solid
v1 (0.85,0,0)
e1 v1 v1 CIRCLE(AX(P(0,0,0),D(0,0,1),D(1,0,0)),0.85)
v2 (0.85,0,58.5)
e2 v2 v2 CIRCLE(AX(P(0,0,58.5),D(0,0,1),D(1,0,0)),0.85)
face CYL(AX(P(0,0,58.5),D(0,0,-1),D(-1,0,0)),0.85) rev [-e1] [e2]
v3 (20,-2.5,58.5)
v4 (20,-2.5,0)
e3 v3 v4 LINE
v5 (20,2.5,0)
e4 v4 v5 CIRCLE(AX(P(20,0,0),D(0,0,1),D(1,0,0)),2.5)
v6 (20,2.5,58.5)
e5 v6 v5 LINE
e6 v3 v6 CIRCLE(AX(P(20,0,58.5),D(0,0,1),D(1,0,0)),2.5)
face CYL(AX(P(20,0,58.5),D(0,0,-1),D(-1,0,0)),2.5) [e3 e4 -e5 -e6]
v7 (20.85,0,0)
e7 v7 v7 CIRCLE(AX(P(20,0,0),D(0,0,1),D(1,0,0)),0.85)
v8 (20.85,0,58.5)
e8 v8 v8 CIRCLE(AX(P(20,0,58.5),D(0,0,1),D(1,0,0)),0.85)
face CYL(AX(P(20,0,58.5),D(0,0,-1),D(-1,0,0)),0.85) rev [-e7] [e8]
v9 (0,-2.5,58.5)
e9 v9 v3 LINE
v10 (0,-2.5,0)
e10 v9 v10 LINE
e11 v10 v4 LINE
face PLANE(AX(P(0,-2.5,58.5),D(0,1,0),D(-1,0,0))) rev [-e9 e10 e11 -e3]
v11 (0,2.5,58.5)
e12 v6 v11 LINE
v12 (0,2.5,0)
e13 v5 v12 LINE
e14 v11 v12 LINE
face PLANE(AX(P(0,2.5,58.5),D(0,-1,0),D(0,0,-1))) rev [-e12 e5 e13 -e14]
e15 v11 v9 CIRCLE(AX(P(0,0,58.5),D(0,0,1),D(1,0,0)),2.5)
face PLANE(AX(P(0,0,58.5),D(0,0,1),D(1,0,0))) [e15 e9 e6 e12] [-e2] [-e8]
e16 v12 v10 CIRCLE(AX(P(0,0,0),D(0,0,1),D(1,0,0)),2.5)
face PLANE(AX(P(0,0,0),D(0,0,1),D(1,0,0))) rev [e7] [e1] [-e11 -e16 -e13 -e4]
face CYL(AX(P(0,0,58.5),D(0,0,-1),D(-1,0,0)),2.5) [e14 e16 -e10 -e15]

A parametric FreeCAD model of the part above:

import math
import FreeCAD as App
import Part
import Sketcher
Q = App.Units.Quantity

doc = App.newDocument("Part")
params = doc.addObject("Spreadsheet::Sheet", "Params")
for row, (alias, value) in enumerate([
    ("sketch1_diameter", "1.7 mm"),
    ("sketch1_radius", "2.5 mm"),
    ("sketch1_width", "20 mm"),
    ("pad1_length", "58.5 mm"),
], start=1):
    params.set(f"A{row}", alias)
    params.set(f"B{row}", "=" + value)
    params.setAlias(f"B{row}", alias)

body = doc.addObject("PartDesign::Body", "Body")

# Sketch on XY plane
sketch1 = body.newObject("Sketcher::SketchObject", "Sketch")
sketch1.AttachmentSupport = (doc.getObject("XY_Plane"), [""])
sketch1.MapMode = "FlatFace"
sketch1.addGeometry([
    Part.LineSegment(App.Vector(20, 2.5, 0), App.Vector(0, 2.5, 0)),  # 0
    Part.ArcOfCircle(Part.Circle(App.Vector(0, 0, 0), App.Vector(0, 0, 1), 2.5), math.radians(90), math.radians(270)),  # 1
    Part.LineSegment(App.Vector(0, -2.5, 0), App.Vector(20, -2.5, 0)),  # 2
    Part.ArcOfCircle(Part.Circle(App.Vector(20, 0, 0), App.Vector(0, 0, 1), 2.5), math.radians(-90), math.radians(90)),  # 3
    Part.Circle(App.Vector(20, 0, 0), App.Vector(0, 0, 1), 0.8),  # 4
    Part.Circle(App.Vector(0, 0, 0), App.Vector(0, 0, 1), 0.8),  # 5
], False)
sketch1.addConstraint([
    Sketcher.Constraint("Tangent", 0, 2, 1, 1),
    Sketcher.Constraint("Tangent", 1, 2, 2, 1),
    Sketcher.Constraint("Tangent", 2, 2, 3, 1),
    Sketcher.Constraint("Tangent", 3, 2, 0, 1),
    Sketcher.Constraint("Horizontal", 0),
    Sketcher.Constraint("Horizontal", 2),
    Sketcher.Constraint("Coincident", 1, 3, -1, 1),
    Sketcher.Constraint("Coincident", 5, 3, -1, 1),
    Sketcher.Constraint("Coincident", 4, 3, 3, 3),
    Sketcher.Constraint("Equal", 4, 5),
    Sketcher.Constraint("Diameter", 4, Q("1.7 mm")),
    Sketcher.Constraint("Radius", 1, Q("2.5 mm")),
    Sketcher.Constraint("DistanceX", 0, 2, 0, 1, Q("20 mm")),
])
sketch1.setExpression("Constraints[10]", "Params.sketch1_diameter")
sketch1.setExpression("Constraints[11]", "Params.sketch1_radius")
sketch1.setExpression("Constraints[12]", "Params.sketch1_width")
pad1 = body.newObject("PartDesign::Pad", "Pad")
pad1.Profile = sketch1
pad1.setExpression("Length", "Params.pad1_length")

doc.recompute()
